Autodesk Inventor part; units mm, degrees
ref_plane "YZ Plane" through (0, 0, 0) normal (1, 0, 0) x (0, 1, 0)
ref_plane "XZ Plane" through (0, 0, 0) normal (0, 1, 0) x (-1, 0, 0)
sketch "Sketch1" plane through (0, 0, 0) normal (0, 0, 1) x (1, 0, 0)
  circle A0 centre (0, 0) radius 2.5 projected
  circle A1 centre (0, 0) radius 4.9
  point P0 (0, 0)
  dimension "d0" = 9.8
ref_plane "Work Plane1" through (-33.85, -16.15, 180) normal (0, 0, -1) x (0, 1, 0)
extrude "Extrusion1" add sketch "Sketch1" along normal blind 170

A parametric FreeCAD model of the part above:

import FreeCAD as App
import Part
import Sketcher
from FreeCAD import Vector

doc = App.newDocument("Part")
params = doc.addObject("Spreadsheet::Sheet", "Params")
for row, (alias, value) in enumerate([
    ("sketch1_diameter", "9.8 mm"),
    ("sketch1_diameter2", "5 mm"),
    ("pad1_length", "170 mm"),
], start=1):
    params.set(f"A{row}", alias)
    params.set(f"B{row}", "=" + value)
    params.setAlias(f"B{row}", alias)

body = doc.addObject("PartDesign::Body", "Body")

sketch1 = body.newObject("Sketcher::SketchObject", "Sketch")
sketch1.AttachmentSupport = (doc.getObject("XY_Plane"), [""])
sketch1.MapMode = "FlatFace"
sketch1.addGeometry([
    Part.Circle(Vector(0, 0, 0), Vector(0, 0, 1), 4.9),
    Part.Circle(Vector(0, 0, 0), Vector(0, 0, 1), 2.5),
], False)
sketch1.addConstraint([
    Sketcher.Constraint("Coincident", 0, 3, -1, 1),
    Sketcher.Constraint("Coincident", 1, 3, -1, 1),
    Sketcher.Constraint("Diameter", 0, 9.8),
    Sketcher.Constraint("Diameter", 1, 5.0),
])
sketch1.setExpression("Constraints[2]", "Params.sketch1_diameter")
sketch1.setExpression("Constraints[3]", "Params.sketch1_diameter2")
pad1 = body.newObject("PartDesign::Pad", "Pad")
pad1.Profile = sketch1
pad1.setExpression("Length", "Params.pad1_length")

doc.recompute()
